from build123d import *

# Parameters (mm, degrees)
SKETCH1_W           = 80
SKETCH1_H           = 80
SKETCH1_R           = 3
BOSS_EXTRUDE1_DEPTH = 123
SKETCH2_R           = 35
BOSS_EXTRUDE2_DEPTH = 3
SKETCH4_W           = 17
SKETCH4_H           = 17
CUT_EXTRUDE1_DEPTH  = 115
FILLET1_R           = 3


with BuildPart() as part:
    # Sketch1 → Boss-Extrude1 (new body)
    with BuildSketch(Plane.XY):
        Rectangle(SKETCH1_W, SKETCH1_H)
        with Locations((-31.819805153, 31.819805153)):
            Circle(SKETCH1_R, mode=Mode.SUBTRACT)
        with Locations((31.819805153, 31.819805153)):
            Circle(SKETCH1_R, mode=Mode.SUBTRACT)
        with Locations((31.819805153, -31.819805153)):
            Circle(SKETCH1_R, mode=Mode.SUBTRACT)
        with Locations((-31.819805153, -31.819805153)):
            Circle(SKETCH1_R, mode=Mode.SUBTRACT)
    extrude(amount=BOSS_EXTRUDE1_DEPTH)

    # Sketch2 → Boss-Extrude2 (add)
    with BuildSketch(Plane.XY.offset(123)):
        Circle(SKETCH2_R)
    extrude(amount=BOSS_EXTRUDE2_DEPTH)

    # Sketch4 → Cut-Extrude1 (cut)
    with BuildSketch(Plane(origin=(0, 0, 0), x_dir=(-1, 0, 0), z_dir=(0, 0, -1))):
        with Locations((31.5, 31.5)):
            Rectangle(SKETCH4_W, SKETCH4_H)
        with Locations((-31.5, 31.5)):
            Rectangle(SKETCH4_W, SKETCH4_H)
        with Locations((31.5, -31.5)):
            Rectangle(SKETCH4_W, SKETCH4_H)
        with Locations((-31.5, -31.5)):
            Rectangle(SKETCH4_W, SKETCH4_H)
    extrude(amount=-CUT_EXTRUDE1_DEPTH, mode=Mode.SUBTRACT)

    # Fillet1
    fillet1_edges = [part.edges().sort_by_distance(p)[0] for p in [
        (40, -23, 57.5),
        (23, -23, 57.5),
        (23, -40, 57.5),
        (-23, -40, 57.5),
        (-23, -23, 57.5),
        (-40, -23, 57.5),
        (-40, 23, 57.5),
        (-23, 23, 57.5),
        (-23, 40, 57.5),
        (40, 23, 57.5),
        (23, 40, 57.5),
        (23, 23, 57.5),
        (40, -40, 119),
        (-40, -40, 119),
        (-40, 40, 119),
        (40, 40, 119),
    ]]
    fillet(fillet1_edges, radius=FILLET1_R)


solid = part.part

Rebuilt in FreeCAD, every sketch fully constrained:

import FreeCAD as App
import Part
import Sketcher

V = App.Vector
Q = App.Units.Quantity


def edges_at(feature, points):
    """Names of the edges that pass closest to the given points."""
    edges = feature.Shape.Edges
    near = lambda p: min(range(len(edges)), key=lambda i: edges[i].distToShape(Part.Vertex(*p))[0])
    return sorted({f"Edge{near(p) + 1}" for p in points})

doc = App.newDocument("Part")
body = doc.addObject("PartDesign::Body", "Body")

# Sketch on XY plane
sketch1 = doc.addObject("Sketcher::SketchObject", "Sketch")
body.addObject(sketch1)
sketch1.AttachmentSupport = (doc.XY_Plane, [""])
sketch1.MapMode = "FlatFace"
sketch1.addGeometry(Part.LineSegment(V(-40, 40, 0), V(-40, -40, 0)), False)
sketch1.addGeometry(Part.LineSegment(V(-40, -40, 0), V(40, -40, 0)), False)
sketch1.addGeometry(Part.LineSegment(V(40, -40, 0), V(40, 40, 0)), False)
sketch1.addGeometry(Part.LineSegment(V(40, 40, 0), V(-40, 40, 0)), False)
sketch1.addGeometry(Part.Circle(V(-31.819805, -31.819805, 0), V(0, 0, 1), 3), False)
sketch1.addGeometry(Part.Circle(V(31.819805, -31.819805, 0), V(0, 0, 1), 3), False)
sketch1.addGeometry(Part.Circle(V(-31.819805, 31.819805, 0), V(0, 0, 1), 3), False)
sketch1.addGeometry(Part.Circle(V(31.819805, 31.819805, 0), V(0, 0, 1), 3), False)
sketch1.addConstraint(Sketcher.Constraint("Coincident", 0, 2, 1, 1))
sketch1.addConstraint(Sketcher.Constraint("Coincident", 1, 2, 2, 1))
sketch1.addConstraint(Sketcher.Constraint("Coincident", 2, 2, 3, 1))
sketch1.addConstraint(Sketcher.Constraint("Coincident", 3, 2, 0, 1))
sketch1.addConstraint(Sketcher.Constraint("Vertical", 0))
sketch1.addConstraint(Sketcher.Constraint("Horizontal", 1))
sketch1.addConstraint(Sketcher.Constraint("Vertical", 2))
sketch1.addConstraint(Sketcher.Constraint("Horizontal", 3))
sketch1.addConstraint(Sketcher.Constraint("Equal", 4, 5))
sketch1.addConstraint(Sketcher.Constraint("Equal", 5, 6))
sketch1.addConstraint(Sketcher.Constraint("Equal", 6, 7))
sketch1.addConstraint(Sketcher.Constraint("Symmetric", 5, 3, 6, 3, -1, 1))
sketch1.addConstraint(Sketcher.Constraint("Symmetric", 4, 3, 7, 3, -1, 1))
sketch1.addConstraint(Sketcher.Constraint("Symmetric", 0, 2, 2, 2, -1, 1))
sketch1.addConstraint(Sketcher.Constraint("Symmetric", 4, 3, 5, 3, -2))
sketch1.addConstraint(Sketcher.Constraint("Equal", 3, 0))
sketch1.addConstraint(Sketcher.Constraint("Diameter", 4, Q("6 mm")))
sketch1.addConstraint(Sketcher.Constraint("DistanceX", 1, 1, 1, 2, Q("80 mm")))
sketch1.addConstraint(Sketcher.Constraint("DistanceX", 4, 3, 5, 3, Q("63.63961 mm")))
sketch1.addConstraint(Sketcher.Constraint("DistanceY", 4, 3, 6, 3, Q("63.63961 mm")))
pad1 = doc.addObject("PartDesign::Pad", "Pad")
body.addObject(pad1)
pad1.Profile = sketch1
pad1.Length = 123

# Sketch on XY plane
sketch2 = doc.addObject("Sketcher::SketchObject", "Sketch001")
body.addObject(sketch2)
sketch2.AttachmentSupport = (doc.XY_Plane, [""])
sketch2.MapMode = "FlatFace"
sketch2.AttachmentOffset = App.Placement(V(0, 0, 123), App.Rotation())
sketch2.addGeometry(Part.Circle(V(0, 0, 0), V(0, 0, 1), 35), False)
sketch2.addConstraint(Sketcher.Constraint("Coincident", 0, 3, -1, 1))
sketch2.addConstraint(Sketcher.Constraint("Diameter", 0, Q("70 mm")))
pad2 = doc.addObject("PartDesign::Pad", "Pad001")
body.addObject(pad2)
pad2.Profile = sketch2
pad2.Length = 3

# Sketch on XY plane
sketch3 = doc.addObject("Sketcher::SketchObject", "Sketch002")
body.addObject(sketch3)
sketch3.AttachmentSupport = (doc.XY_Plane, [""])
sketch3.MapMode = "FlatFace"
sketch3.addGeometry(Part.LineSegment(V(-23, 40, 0), V(-23, 23, 0)), False)
sketch3.addGeometry(Part.LineSegment(V(-23, 23, 0), V(-40, 23, 0)), False)
sketch3.addGeometry(Part.LineSegment(V(-40, 23, 0), V(-40, 40, 0)), False)
sketch3.addGeometry(Part.LineSegment(V(-40, 40, 0), V(-23, 40, 0)), False)
sketch3.addGeometry(Part.LineSegment(V(40, 40, 0), V(40, 23, 0)), False)
sketch3.addGeometry(Part.LineSegment(V(40, 23, 0), V(23, 23, 0)), False)
sketch3.addGeometry(Part.LineSegment(V(23, 23, 0), V(23, 40, 0)), False)
sketch3.addGeometry(Part.LineSegment(V(23, 40, 0), V(40, 40, 0)), False)
sketch3.addGeometry(Part.LineSegment(V(-23, -23, 0), V(-23, -40, 0)), False)
sketch3.addGeometry(Part.LineSegment(V(-23, -40, 0), V(-40, -40, 0)), False)
sketch3.addGeometry(Part.LineSegment(V(-40, -40, 0), V(-40, -23, 0)), False)
sketch3.addGeometry(Part.LineSegment(V(-40, -23, 0), V(-23, -23, 0)), False)
sketch3.addGeometry(Part.LineSegment(V(40, -23, 0), V(40, -40, 0)), False)
sketch3.addGeometry(Part.LineSegment(V(40, -40, 0), V(23, -40, 0)), False)
sketch3.addGeometry(Part.LineSegment(V(23, -40, 0), V(23, -23, 0)), False)
sketch3.addGeometry(Part.LineSegment(V(23, -23, 0), V(40, -23, 0)), False)
sketch3.addConstraint(Sketcher.Constraint("Coincident", 0, 2, 1, 1))
sketch3.addConstraint(Sketcher.Constraint("Coincident", 1, 2, 2, 1))
sketch3.addConstraint(Sketcher.Constraint("Coincident", 2, 2, 3, 1))
sketch3.addConstraint(Sketcher.Constraint("Coincident", 3, 2, 0, 1))
sketch3.addConstraint(Sketcher.Constraint("Coincident", 4, 2, 5, 1))
sketch3.addConstraint(Sketcher.Constraint("Coincident", 5, 2, 6, 1))
sketch3.addConstraint(Sketcher.Constraint("Coincident", 6, 2, 7, 1))
sketch3.addConstraint(Sketcher.Constraint("Coincident", 7, 2, 4, 1))
sketch3.addConstraint(Sketcher.Constraint("Coincident", 8, 2, 9, 1))
sketch3.addConstraint(Sketcher.Constraint("Coincident", 9, 2, 10, 1))
sketch3.addConstraint(Sketcher.Constraint("Coincident", 10, 2, 11, 1))
sketch3.addConstraint(Sketcher.Constraint("Coincident", 11, 2, 8, 1))
sketch3.addConstraint(Sketcher.Constraint("Coincident", 12, 2, 13, 1))
sketch3.addConstraint(Sketcher.Constraint("Coincident", 13, 2, 14, 1))
sketch3.addConstraint(Sketcher.Constraint("Coincident", 14, 2, 15, 1))
sketch3.addConstraint(Sketcher.Constraint("Coincident", 15, 2, 12, 1))
sketch3.addConstraint(Sketcher.Constraint("Vertical", 0))
sketch3.addConstraint(Sketcher.Constraint("Horizontal", 1))
sketch3.addConstraint(Sketcher.Constraint("Vertical", 2))
sketch3.addConstraint(Sketcher.Constraint("Horizontal", 3))
sketch3.addConstraint(Sketcher.Constraint("Vertical", 4))
sketch3.addConstraint(Sketcher.Constraint("Horizontal", 5))
sketch3.addConstraint(Sketcher.Constraint("Vertical", 6))
sketch3.addConstraint(Sketcher.Constraint("Horizontal", 7))
sketch3.addConstraint(Sketcher.Constraint("Vertical", 8))
sketch3.addConstraint(Sketcher.Constraint("Horizontal", 9))
sketch3.addConstraint(Sketcher.Constraint("Vertical", 10))
sketch3.addConstraint(Sketcher.Constraint("Horizontal", 11))
sketch3.addConstraint(Sketcher.Constraint("Vertical", 12))
sketch3.addConstraint(Sketcher.Constraint("Horizontal", 13))
sketch3.addConstraint(Sketcher.Constraint("Vertical", 14))
sketch3.addConstraint(Sketcher.Constraint("Horizontal", 15))
sketch3.addConstraint(Sketcher.Constraint("Symmetric", 6, 2, 8, 2, -1, 1))
sketch3.addConstraint(Sketcher.Constraint("Symmetric", 4, 2, 10, 2, -1, 1))
sketch3.addConstraint(Sketcher.Constraint("Symmetric", 2, 2, 12, 2, -1, 1))
sketch3.addConstraint(Sketcher.Constraint("Symmetric", 0, 2, 14, 2, -1, 1))
sketch3.addConstraint(Sketcher.Constraint("Symmetric", 1, 2, 4, 2, -2))
sketch3.addConstraint(Sketcher.Constraint("Symmetric", 3, 2, 6, 2, -2))
sketch3.addConstraint(Sketcher.Constraint("Equal", 15, 0))
sketch3.addConstraint(Sketcher.Constraint("DistanceX", 1, 2, 1, 1, Q("17 mm")))
sketch3.addConstraint(Sketcher.Constraint("DistanceX", 0, 2, -1, 1, Q("23 mm")))
sketch3.addConstraint(Sketcher.Constraint("DistanceY", -1, 1, 0, 2, Q("23 mm")))
pocket1 = doc.addObject("PartDesign::Pocket", "Pocket")
body.addObject(pocket1)
pocket1.Profile = sketch3
pocket1.Length = 115
pocket1.Reversed = True
doc.recompute()

fillet = doc.addObject("PartDesign::Fillet", "Fillet")
body.addObject(fillet)
fillet.Base = (pocket1, edges_at(pocket1, [
    (40, -23, 57.5),
    (23, -23, 57.5),
    (23, -40, 57.5),
    (-23, -40, 57.5),
    (-23, -23, 57.5),
    (-40, -23, 57.5),
    (-40, 23, 57.5),
    (-23, 23, 57.5),
    (-23, 40, 57.5),
    (40, 23, 57.5),
    (23, 40, 57.5),
    (23, 23, 57.5),
    (40, -40, 119),
    (-40, -40, 119),
    (-40, 40, 119),
    (40, 40, 119),
]))
fillet.Radius = 3

doc.recompute()
